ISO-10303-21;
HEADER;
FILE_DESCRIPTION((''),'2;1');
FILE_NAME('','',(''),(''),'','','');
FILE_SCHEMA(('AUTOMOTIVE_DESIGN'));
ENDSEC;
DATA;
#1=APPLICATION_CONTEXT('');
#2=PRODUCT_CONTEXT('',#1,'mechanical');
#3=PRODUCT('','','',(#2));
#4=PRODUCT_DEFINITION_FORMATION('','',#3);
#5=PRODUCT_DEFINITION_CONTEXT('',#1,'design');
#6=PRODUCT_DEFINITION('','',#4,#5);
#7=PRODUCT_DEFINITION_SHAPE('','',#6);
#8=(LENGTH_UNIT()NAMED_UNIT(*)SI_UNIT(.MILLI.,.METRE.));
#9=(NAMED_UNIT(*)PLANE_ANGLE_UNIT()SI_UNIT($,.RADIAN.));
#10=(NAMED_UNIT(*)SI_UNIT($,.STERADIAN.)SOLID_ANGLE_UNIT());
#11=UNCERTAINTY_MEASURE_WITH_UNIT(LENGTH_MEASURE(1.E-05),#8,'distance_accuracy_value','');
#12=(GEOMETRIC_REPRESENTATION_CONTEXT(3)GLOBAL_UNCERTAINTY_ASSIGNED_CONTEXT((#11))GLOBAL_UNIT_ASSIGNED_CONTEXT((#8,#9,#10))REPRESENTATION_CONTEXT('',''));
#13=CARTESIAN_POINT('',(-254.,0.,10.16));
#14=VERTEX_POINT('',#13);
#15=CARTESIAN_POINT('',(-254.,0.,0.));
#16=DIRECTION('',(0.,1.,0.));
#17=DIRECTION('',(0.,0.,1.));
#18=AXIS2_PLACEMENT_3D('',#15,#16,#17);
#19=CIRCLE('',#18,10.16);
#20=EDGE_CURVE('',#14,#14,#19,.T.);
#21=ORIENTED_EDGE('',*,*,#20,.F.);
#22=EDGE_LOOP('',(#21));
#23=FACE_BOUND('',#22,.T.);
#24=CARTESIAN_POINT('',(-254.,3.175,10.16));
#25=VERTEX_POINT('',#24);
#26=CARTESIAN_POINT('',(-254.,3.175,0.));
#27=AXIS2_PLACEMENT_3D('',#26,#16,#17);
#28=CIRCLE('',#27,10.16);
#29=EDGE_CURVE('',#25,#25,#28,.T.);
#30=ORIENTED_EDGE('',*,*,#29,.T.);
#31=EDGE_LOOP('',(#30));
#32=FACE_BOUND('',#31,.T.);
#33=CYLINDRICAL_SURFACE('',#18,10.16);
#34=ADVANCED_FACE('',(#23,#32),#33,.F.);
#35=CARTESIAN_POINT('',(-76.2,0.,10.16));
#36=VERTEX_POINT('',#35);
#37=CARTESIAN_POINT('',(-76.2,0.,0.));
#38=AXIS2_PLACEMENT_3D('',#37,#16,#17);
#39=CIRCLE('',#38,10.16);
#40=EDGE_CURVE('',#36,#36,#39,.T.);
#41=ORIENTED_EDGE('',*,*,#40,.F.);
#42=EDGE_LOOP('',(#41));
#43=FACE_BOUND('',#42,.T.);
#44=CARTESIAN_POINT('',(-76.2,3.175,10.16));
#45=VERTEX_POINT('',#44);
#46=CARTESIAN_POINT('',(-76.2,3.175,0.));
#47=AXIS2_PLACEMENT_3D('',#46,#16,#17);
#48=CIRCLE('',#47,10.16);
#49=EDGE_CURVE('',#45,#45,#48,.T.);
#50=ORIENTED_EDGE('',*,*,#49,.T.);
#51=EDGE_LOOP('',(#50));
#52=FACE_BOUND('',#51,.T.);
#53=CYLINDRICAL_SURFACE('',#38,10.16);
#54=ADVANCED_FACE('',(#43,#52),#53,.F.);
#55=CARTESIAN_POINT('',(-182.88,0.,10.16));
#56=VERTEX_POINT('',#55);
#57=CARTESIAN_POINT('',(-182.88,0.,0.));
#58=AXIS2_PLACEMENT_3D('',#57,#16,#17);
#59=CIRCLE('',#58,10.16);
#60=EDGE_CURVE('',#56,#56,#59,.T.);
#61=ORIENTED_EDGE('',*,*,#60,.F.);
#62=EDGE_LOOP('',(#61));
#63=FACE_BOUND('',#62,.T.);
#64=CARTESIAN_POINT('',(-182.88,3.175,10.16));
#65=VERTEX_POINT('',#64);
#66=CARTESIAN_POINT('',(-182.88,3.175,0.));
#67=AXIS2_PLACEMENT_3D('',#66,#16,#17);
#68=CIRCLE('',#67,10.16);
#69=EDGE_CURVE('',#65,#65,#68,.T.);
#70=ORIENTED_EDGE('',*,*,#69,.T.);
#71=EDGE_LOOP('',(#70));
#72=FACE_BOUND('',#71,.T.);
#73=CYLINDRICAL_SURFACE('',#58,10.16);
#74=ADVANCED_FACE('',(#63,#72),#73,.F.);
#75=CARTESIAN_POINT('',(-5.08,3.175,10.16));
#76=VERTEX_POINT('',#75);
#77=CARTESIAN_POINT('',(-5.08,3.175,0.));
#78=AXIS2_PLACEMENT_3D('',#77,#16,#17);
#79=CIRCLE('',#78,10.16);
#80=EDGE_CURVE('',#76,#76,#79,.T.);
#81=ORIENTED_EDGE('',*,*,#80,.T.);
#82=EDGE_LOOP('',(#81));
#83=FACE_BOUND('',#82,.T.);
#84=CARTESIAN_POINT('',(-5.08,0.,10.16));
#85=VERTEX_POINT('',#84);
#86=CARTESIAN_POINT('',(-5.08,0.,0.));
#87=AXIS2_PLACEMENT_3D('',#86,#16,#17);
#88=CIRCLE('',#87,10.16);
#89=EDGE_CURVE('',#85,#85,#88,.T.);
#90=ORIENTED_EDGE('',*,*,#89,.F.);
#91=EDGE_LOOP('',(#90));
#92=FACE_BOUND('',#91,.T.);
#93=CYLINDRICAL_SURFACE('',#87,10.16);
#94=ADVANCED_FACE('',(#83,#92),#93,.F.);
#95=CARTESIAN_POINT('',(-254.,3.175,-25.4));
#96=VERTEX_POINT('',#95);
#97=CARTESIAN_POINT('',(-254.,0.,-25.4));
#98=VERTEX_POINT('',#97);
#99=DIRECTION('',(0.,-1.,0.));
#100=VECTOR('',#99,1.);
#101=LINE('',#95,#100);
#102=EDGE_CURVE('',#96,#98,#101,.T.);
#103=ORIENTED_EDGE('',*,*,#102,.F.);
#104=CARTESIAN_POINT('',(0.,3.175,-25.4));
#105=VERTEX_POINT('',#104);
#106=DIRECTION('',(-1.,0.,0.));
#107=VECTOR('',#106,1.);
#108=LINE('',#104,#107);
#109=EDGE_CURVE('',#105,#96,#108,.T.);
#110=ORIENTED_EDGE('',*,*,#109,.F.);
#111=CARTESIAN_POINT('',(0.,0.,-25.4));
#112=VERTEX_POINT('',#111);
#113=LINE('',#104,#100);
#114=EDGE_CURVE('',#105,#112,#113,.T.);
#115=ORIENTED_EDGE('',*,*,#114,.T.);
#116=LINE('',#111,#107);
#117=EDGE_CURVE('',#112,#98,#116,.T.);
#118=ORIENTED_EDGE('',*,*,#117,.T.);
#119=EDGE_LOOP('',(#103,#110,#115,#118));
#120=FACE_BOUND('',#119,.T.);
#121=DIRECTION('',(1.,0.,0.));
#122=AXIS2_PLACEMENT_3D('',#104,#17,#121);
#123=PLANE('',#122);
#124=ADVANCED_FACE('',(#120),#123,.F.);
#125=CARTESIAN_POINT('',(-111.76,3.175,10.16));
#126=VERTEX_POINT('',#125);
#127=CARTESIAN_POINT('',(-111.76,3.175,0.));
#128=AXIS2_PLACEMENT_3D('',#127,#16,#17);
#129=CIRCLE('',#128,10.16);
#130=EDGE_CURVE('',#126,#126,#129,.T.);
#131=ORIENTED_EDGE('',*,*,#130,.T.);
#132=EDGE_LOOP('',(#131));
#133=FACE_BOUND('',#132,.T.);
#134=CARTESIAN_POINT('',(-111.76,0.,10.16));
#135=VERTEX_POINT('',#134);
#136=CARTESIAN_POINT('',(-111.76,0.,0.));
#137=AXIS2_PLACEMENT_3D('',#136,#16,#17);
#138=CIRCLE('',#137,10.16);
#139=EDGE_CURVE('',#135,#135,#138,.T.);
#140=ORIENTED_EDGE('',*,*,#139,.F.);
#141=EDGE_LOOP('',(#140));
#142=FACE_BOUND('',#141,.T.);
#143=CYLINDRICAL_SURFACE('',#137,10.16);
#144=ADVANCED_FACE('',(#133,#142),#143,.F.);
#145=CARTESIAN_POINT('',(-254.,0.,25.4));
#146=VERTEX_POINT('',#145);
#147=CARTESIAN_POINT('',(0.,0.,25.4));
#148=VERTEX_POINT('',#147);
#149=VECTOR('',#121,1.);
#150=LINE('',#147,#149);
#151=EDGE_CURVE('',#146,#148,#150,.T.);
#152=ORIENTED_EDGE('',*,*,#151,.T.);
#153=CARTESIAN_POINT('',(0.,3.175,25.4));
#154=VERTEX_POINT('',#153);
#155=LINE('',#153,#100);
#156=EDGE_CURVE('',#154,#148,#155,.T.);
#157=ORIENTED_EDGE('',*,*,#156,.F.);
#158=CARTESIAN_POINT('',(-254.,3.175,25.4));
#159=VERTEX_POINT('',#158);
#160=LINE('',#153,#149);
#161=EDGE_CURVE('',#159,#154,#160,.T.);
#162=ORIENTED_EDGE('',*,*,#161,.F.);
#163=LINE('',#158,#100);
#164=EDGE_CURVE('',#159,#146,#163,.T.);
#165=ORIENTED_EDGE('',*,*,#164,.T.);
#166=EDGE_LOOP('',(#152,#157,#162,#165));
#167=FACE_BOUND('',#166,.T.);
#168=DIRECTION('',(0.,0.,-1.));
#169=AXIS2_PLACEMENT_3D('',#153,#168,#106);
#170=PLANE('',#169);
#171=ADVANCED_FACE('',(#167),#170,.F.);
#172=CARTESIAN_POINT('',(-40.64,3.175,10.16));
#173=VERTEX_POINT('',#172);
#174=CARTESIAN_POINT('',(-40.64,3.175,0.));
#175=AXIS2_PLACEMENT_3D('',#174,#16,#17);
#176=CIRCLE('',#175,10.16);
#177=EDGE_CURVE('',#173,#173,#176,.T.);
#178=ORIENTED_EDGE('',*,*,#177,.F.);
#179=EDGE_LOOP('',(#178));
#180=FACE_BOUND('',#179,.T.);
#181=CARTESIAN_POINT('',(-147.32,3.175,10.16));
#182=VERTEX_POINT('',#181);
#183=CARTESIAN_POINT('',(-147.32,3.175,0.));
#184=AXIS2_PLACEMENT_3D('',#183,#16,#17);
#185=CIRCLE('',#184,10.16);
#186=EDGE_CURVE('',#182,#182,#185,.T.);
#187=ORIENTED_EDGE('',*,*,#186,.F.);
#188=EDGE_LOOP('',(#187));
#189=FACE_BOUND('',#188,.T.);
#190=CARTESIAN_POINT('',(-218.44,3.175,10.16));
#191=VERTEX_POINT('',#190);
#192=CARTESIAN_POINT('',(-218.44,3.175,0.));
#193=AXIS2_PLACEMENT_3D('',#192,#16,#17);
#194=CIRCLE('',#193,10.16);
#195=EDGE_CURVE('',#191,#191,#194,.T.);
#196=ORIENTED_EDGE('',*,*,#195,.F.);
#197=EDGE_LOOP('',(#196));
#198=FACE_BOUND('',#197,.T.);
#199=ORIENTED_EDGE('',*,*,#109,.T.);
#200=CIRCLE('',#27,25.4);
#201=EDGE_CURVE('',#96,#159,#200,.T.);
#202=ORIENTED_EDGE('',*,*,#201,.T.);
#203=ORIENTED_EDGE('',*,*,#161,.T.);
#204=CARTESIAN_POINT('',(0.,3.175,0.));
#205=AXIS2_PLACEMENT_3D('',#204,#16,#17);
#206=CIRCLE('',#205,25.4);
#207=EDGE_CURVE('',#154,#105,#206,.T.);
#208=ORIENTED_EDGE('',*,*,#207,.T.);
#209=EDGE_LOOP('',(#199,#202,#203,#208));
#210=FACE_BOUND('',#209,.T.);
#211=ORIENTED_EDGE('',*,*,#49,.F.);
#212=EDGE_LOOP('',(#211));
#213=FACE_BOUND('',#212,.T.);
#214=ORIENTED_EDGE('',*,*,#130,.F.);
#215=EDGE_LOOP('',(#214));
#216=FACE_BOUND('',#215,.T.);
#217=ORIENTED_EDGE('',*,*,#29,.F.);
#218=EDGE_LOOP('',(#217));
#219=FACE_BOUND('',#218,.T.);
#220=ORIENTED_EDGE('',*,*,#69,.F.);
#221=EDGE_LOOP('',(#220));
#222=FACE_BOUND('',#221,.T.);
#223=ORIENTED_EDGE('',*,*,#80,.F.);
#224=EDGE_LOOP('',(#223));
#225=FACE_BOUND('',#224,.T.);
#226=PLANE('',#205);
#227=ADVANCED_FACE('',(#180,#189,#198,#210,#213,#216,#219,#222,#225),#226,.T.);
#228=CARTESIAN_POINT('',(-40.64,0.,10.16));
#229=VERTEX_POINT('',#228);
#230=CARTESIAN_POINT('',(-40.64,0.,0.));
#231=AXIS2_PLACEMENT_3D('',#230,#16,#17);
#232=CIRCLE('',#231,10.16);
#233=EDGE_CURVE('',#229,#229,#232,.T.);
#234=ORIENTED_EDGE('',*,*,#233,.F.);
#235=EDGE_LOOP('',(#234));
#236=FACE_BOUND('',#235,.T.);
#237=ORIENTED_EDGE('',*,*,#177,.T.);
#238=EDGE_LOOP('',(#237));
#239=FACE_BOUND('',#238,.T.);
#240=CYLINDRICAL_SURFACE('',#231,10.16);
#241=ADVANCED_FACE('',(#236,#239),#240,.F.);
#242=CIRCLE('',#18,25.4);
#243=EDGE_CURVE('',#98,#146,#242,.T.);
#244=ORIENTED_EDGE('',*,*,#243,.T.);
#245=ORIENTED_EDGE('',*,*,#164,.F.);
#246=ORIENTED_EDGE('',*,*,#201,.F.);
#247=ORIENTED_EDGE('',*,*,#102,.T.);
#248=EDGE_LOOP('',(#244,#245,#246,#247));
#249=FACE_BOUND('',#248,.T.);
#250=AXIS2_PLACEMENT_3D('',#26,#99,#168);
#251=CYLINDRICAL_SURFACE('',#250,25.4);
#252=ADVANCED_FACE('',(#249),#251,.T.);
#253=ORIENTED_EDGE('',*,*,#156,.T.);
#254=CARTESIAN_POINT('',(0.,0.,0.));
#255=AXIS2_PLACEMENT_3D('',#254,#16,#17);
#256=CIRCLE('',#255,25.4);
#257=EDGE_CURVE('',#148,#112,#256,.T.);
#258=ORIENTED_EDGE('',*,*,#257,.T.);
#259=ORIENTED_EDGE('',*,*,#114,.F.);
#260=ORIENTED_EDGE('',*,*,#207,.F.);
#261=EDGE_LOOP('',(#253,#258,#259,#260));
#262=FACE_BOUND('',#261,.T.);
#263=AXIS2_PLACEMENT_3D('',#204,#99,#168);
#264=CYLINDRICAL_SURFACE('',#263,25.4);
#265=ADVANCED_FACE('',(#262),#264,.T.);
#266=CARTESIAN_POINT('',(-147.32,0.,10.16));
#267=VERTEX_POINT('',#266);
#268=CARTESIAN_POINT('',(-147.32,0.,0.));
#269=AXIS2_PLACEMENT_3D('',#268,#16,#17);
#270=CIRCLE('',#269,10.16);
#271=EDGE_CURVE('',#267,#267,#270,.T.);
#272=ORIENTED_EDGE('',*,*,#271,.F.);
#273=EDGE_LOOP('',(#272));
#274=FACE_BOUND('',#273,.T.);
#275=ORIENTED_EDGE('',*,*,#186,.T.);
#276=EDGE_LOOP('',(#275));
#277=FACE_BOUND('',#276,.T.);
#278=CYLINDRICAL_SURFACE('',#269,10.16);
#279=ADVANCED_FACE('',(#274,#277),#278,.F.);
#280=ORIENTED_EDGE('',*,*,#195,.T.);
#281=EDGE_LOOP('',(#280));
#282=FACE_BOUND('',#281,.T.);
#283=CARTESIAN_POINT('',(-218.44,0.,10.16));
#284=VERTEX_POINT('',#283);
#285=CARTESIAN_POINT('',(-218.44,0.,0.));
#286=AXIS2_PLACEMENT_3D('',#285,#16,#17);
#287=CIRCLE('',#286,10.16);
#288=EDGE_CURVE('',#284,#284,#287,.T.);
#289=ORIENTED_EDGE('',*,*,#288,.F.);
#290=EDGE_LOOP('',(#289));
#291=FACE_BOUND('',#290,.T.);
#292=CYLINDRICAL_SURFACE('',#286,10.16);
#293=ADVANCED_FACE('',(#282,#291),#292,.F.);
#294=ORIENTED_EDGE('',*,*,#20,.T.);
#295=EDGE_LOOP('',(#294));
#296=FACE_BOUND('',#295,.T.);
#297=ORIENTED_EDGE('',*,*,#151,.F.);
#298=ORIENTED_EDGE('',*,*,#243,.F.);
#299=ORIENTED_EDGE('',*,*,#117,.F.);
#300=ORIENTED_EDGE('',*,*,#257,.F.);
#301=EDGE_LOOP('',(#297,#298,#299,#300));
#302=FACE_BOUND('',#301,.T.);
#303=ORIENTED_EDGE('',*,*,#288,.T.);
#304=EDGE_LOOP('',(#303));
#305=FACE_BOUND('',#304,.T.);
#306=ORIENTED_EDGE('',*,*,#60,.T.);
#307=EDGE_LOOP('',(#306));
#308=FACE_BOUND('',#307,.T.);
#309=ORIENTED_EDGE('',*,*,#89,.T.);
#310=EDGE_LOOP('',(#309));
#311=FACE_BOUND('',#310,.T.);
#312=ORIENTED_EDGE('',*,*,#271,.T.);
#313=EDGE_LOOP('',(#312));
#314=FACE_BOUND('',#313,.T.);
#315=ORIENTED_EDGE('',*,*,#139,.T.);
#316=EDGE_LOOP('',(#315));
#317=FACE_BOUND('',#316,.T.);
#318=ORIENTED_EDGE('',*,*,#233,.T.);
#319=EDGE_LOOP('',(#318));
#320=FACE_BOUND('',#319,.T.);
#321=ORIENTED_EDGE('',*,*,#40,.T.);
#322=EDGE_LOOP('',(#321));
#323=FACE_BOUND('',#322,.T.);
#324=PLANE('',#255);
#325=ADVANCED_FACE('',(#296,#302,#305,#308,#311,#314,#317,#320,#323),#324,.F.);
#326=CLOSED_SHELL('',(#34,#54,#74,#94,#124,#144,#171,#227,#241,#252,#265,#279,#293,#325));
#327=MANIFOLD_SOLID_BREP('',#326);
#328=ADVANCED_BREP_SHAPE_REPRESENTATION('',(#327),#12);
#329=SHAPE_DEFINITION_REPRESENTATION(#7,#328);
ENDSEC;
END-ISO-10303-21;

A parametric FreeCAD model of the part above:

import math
import FreeCAD as App
import Part
import Sketcher

V = App.Vector
Q = App.Units.Quantity

doc = App.newDocument("Part")
body = doc.addObject("PartDesign::Body", "Body")

sketch1 = doc.addObject("Sketcher::SketchObject", "Sketch")
body.addObject(sketch1)
sketch1.AttachmentSupport = (doc.XZ_Plane, [""])
sketch1.MapMode = "FlatFace"
sketch1.addGeometry([
    Part.LineSegment(V(0, -25, 0), V(-254, -25, 0)),
    Part.ArcOfCircle(Part.Circle(V(-254, 0, 0), V(0, 0, 1), 25), math.radians(90), math.radians(270)),
    Part.LineSegment(V(-254, 25, 0), V(0, 25, 0)),
    Part.ArcOfCircle(Part.Circle(V(0, 0, 0), V(0, 0, 1), 25), math.radians(-90), math.radians(90)),
], False)
sketch1.addConstraint([
    Sketcher.Constraint("Tangent", 0, 2, 1, 2),
    Sketcher.Constraint("Tangent", 1, 1, 2, 1),
    Sketcher.Constraint("Tangent", 2, 2, 3, 2),
    Sketcher.Constraint("Tangent", 3, 1, 0, 1),
    Sketcher.Constraint("Horizontal", 0),
    Sketcher.Constraint("Horizontal", 2),
    Sketcher.Constraint("Coincident", 3, 3, -1, 1),
    Sketcher.Constraint("Radius", 1, Q("1 in")),
    Sketcher.Constraint("DistanceX", 0, 2, 0, 1, Q("10 in")),
])
pad1 = doc.addObject("PartDesign::Pad", "Pad")
body.addObject(pad1)
pad1.Profile = sketch1
pad1.Length = Q("0.125 in")
pad1.Reversed = True

sketch2 = doc.addObject("Sketcher::SketchObject", "Sketch001")
body.addObject(sketch2)
sketch2.AttachmentSupport = (doc.XZ_Plane, [""])
sketch2.MapMode = "FlatFace"
sketch2.AttachmentOffset = App.Placement(V(0, 0, -0.125 * 25.4), App.Rotation())
sketch2.addGeometry(Part.Circle(V(-254, 0, 0), V(0, 0, 1), 10), False)
sketch2.addConstraint([
    Sketcher.Constraint("PointOnObject", 0, 3, -1),
    Sketcher.Constraint("Diameter", 0, Q("0.8 in")),
    Sketcher.Constraint("DistanceX", 0, 3, -1, 1, Q("10 in")),
])
pocket1 = doc.addObject("PartDesign::Pocket", "Pocket")
body.addObject(pocket1)
pocket1.Profile = sketch2
pocket1.Type = "ThroughAll"
pocket1.Reversed = True
doc.recompute()

linearpattern = doc.addObject("PartDesign::LinearPattern", "LinearPattern")
body.addObject(linearpattern)
linearpattern.Originals = [pocket1]
linearpattern.Direction = (doc.X_Axis, [""])
linearpattern.Mode = "offset"
linearpattern.Offset = Q("1.4 in")
linearpattern.Occurrences = 8
body.Tip = linearpattern

doc.recompute()
